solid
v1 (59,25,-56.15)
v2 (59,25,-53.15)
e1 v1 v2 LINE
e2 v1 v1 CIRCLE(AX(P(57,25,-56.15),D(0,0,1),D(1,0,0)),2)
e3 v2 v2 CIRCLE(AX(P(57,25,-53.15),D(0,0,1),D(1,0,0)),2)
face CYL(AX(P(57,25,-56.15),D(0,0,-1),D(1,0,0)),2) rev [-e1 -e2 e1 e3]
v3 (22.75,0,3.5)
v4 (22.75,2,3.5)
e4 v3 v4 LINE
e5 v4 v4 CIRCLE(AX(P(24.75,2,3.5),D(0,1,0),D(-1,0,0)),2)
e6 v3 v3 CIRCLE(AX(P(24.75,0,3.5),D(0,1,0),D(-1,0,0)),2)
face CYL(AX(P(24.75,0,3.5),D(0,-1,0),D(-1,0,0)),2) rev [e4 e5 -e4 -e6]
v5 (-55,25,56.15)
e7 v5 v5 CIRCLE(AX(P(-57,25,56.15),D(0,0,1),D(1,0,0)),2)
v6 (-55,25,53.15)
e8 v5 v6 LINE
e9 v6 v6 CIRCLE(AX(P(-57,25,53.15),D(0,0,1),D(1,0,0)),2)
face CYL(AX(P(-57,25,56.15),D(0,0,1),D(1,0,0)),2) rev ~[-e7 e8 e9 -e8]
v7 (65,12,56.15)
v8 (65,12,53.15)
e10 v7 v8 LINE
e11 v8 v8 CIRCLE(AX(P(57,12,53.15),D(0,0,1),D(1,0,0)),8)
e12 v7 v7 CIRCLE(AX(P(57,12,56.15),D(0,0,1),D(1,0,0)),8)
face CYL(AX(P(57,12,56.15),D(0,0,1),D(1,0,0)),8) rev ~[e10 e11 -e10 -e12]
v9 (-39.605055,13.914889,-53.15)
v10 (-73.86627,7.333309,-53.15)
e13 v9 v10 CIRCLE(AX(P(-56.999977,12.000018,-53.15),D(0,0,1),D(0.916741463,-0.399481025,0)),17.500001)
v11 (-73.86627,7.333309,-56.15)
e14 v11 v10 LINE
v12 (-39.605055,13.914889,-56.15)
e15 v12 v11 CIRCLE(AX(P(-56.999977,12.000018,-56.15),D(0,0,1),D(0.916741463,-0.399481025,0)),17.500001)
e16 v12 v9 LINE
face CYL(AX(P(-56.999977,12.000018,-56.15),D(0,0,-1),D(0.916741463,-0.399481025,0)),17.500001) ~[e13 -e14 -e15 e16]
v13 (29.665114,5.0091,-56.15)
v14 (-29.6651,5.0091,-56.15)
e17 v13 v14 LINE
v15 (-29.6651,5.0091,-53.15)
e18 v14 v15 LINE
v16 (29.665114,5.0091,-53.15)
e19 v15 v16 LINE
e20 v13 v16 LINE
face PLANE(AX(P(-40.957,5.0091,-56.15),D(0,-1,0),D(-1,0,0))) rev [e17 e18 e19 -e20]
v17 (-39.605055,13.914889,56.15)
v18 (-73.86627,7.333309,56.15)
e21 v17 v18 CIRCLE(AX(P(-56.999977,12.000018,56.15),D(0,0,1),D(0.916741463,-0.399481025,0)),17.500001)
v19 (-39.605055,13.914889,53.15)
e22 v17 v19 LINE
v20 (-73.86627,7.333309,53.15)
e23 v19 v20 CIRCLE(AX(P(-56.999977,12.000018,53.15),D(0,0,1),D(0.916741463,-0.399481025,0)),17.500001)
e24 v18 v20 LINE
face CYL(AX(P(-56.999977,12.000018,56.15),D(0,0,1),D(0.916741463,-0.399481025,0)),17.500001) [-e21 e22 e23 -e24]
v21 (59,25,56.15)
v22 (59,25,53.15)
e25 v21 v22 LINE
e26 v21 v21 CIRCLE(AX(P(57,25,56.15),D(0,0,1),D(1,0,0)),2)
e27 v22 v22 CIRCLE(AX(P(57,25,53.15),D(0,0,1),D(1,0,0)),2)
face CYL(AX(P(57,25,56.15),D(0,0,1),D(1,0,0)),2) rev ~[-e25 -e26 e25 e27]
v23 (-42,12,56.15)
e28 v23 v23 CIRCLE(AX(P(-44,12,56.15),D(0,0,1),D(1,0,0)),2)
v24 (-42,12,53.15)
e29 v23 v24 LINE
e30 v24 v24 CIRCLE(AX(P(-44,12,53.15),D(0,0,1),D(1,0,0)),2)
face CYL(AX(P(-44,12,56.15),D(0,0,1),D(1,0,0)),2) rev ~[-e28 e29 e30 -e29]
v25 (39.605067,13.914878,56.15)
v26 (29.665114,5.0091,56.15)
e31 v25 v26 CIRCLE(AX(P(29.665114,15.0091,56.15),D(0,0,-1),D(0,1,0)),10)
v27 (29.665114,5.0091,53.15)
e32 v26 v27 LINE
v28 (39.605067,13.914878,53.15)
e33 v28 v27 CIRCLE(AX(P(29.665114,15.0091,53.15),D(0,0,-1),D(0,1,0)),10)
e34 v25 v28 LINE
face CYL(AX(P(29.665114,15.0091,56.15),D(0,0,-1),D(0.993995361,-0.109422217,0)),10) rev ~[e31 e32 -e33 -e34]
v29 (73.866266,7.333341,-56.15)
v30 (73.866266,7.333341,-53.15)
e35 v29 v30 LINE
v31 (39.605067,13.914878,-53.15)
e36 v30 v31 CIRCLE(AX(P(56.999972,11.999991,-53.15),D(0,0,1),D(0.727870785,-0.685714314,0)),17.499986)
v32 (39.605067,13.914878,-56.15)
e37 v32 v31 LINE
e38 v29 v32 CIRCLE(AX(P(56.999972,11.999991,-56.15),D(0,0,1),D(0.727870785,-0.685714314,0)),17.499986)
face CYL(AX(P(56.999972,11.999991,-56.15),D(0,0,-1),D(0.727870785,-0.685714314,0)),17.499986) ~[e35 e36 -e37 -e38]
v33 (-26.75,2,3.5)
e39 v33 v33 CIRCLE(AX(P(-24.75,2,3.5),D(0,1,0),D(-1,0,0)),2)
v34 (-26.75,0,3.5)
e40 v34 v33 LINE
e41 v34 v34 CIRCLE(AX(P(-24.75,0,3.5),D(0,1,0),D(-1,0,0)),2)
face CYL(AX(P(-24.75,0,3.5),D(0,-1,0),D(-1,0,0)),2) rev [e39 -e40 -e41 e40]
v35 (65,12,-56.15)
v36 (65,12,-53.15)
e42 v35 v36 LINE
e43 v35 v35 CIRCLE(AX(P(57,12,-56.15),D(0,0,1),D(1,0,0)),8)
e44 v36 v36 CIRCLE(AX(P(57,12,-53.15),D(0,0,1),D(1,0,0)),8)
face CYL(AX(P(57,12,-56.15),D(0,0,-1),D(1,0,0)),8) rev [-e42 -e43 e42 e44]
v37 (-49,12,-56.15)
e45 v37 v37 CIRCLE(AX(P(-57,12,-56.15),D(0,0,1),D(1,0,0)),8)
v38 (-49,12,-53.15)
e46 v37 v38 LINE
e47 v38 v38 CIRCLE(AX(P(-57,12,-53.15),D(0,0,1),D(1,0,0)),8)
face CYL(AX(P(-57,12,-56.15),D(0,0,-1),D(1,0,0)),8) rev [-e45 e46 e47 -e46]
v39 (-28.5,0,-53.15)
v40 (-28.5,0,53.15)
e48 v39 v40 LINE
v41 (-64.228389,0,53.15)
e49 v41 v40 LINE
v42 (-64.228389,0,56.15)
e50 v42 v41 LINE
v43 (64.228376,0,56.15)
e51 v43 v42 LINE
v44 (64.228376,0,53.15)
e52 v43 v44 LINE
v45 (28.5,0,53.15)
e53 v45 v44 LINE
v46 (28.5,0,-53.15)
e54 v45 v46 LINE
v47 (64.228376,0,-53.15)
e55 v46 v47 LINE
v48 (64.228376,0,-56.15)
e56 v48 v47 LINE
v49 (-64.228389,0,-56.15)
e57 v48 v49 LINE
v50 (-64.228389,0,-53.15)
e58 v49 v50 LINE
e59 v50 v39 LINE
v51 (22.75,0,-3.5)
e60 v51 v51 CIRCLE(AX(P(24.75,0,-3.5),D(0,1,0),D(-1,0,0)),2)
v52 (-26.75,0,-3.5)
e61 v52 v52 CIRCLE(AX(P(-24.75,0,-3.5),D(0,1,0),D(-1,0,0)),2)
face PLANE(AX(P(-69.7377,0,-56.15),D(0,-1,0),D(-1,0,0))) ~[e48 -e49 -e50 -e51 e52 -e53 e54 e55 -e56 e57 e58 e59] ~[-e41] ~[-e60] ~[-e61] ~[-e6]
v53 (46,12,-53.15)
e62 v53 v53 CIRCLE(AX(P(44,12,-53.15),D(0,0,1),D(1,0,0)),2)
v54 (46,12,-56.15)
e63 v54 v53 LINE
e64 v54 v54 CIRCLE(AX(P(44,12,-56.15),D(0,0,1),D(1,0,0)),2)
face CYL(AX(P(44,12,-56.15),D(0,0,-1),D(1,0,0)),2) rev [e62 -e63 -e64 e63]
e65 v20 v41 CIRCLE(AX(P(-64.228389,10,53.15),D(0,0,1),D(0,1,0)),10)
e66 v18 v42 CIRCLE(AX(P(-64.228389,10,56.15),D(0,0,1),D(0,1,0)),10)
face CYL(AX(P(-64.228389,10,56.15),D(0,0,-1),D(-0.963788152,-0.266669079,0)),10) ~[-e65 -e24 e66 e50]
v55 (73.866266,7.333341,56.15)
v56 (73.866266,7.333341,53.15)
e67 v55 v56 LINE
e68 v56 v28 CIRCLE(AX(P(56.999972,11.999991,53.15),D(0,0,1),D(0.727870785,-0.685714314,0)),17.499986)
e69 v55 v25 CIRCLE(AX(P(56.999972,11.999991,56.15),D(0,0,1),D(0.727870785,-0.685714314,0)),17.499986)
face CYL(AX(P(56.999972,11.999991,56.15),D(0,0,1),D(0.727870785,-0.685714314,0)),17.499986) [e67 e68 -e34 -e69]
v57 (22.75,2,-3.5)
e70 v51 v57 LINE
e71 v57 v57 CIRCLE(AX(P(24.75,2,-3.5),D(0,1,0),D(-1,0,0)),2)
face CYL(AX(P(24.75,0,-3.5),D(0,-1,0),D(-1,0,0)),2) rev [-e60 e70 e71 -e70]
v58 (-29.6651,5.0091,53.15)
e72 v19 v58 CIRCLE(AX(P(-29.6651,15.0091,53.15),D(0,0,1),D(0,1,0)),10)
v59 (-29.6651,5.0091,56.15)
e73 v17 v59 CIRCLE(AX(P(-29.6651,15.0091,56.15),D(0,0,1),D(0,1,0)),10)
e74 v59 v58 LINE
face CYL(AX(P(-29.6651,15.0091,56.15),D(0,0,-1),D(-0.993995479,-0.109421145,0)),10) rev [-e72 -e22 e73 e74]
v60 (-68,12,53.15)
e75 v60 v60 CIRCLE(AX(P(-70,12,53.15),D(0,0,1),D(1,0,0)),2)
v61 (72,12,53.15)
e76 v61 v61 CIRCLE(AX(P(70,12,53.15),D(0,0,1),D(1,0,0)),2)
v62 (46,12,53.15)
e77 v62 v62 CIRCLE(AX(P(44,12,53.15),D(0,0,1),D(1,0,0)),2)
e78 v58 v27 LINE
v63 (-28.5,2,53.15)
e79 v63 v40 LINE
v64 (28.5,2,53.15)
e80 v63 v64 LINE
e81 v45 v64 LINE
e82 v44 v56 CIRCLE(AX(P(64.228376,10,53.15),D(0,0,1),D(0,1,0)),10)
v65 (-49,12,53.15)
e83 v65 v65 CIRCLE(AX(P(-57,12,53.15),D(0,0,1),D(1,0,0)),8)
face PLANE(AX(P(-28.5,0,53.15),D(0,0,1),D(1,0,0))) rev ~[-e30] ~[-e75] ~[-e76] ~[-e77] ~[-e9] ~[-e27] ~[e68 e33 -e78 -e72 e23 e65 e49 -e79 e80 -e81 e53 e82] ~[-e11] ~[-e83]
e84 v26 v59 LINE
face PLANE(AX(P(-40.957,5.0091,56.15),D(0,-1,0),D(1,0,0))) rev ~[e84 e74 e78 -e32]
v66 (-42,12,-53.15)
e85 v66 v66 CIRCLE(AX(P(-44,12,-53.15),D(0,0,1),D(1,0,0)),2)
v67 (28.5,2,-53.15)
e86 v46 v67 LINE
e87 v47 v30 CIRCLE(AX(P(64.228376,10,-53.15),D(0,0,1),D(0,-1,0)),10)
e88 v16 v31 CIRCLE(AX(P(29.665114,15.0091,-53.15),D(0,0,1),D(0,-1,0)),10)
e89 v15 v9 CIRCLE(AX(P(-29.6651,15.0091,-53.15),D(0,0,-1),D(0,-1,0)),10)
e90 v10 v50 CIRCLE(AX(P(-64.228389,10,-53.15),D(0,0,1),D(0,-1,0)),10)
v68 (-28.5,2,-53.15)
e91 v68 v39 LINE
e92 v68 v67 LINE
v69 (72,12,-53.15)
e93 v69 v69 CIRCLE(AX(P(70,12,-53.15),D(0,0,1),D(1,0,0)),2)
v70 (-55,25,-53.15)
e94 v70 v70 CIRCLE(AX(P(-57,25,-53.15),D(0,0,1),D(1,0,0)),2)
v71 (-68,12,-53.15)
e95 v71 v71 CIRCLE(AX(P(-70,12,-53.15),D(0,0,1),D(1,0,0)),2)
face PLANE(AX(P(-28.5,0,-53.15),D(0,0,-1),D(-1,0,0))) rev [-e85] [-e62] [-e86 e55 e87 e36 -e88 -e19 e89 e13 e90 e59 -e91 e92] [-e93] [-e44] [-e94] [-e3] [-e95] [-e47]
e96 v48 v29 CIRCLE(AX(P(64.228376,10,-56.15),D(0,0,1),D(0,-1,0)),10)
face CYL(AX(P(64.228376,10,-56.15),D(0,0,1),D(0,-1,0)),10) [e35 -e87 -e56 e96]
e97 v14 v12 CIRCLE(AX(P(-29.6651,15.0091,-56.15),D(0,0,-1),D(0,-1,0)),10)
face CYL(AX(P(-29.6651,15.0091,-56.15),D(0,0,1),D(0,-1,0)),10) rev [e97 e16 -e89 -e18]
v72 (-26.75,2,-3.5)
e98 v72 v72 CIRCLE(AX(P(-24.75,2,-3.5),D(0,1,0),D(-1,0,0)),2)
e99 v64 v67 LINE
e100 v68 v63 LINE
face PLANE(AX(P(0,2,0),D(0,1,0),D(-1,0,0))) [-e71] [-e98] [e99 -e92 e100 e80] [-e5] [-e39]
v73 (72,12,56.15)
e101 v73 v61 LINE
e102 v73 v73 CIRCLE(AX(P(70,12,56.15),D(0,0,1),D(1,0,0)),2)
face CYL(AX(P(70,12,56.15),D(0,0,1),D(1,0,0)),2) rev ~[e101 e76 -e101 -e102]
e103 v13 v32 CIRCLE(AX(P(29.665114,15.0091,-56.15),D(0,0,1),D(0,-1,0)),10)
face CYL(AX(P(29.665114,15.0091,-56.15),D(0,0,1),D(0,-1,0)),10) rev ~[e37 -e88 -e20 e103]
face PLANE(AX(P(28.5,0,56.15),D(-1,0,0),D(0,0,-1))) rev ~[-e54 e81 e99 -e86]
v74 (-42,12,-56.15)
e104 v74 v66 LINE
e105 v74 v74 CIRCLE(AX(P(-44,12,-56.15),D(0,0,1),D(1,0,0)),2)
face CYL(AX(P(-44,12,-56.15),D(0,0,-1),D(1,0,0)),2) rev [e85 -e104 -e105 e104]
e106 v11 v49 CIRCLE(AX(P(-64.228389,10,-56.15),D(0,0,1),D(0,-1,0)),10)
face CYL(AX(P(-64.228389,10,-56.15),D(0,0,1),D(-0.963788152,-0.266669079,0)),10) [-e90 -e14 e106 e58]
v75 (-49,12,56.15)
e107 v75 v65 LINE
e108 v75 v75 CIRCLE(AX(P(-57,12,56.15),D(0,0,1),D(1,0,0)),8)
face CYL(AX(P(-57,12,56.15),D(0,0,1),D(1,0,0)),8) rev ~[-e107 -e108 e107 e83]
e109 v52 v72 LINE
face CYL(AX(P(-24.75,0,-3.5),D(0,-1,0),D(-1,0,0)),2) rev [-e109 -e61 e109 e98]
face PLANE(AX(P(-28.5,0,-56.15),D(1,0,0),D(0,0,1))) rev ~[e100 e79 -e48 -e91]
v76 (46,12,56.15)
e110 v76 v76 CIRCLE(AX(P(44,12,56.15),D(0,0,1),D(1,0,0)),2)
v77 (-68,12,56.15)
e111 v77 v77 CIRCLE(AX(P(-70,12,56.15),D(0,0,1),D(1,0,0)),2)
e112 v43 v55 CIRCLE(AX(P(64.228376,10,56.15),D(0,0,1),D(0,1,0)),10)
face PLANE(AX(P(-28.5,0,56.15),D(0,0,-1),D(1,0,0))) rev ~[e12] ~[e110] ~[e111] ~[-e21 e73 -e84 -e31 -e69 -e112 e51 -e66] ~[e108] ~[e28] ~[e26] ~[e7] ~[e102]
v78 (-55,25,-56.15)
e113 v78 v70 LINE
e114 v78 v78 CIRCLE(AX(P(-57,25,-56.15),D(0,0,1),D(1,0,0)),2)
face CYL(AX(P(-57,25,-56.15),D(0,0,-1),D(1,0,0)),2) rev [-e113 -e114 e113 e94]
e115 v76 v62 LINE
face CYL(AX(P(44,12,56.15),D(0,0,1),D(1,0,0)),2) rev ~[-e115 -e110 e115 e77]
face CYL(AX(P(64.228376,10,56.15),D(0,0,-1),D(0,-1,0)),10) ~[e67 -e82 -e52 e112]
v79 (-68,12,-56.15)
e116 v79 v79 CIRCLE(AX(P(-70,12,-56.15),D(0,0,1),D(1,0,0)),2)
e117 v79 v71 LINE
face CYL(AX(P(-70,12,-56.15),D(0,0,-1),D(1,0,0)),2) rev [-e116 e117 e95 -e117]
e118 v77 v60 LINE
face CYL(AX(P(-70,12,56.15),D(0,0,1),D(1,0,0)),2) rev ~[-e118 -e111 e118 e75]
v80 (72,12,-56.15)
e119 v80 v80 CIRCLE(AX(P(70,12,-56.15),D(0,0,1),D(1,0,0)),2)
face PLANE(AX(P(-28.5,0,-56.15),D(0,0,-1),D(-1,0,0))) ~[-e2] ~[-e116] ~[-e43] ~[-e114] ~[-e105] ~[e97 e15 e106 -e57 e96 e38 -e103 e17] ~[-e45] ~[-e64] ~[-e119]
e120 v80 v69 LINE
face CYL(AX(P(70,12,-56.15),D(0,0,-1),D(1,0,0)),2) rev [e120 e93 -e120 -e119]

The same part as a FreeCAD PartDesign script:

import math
import FreeCAD as App
import Part
import Sketcher


def edges_at(feature, points):
    """Names of the edges that pass closest to the given points."""
    edges = feature.Shape.Edges
    near = lambda p: min(range(len(edges)), key=lambda i: edges[i].distToShape(Part.Vertex(*p))[0])
    return sorted({f"Edge{near(p) + 1}" for p in points})

doc = App.newDocument("Part")
body = doc.addObject("PartDesign::Body", "Body")

sketch1 = doc.addObject("Sketcher::SketchObject", "Sketch")
body.addObject(sketch1)
sketch1.AttachmentSupport = (doc.XZ_Plane, [""])
sketch1.MapMode = "FlatFace"
sketch1.addGeometry([
    Part.LineSegment(App.Vector(28.5, 56.1, 0), App.Vector(28.5, -56.1, 0)),
    Part.LineSegment(App.Vector(28.5, -56.1, 0), App.Vector(-28.5, -56.1, 0)),
    Part.LineSegment(App.Vector(-28.5, -56.1, 0), App.Vector(-28.5, 56.1, 0)),
    Part.LineSegment(App.Vector(-28.5, 56.1, 0), App.Vector(28.5, 56.1, 0)),
    Part.Circle(App.Vector(24.8, -3.5, 0), App.Vector(0, 0, 1), 2),
    Part.Circle(App.Vector(-24.8, -3.5, 0), App.Vector(0, 0, 1), 2),
    Part.Circle(App.Vector(24.8, 3.5, 0), App.Vector(0, 0, 1), 2),
    Part.Circle(App.Vector(-24.8, 3.5, 0), App.Vector(0, 0, 1), 2),
], False)
sketch1.addConstraint([
    Sketcher.Constraint("Coincident", 0, 2, 1, 1),
    Sketcher.Constraint("Coincident", 1, 2, 2, 1),
    Sketcher.Constraint("Coincident", 2, 2, 3, 1),
    Sketcher.Constraint("Coincident", 3, 2, 0, 1),
    Sketcher.Constraint("Vertical", 0),
    Sketcher.Constraint("Horizontal", 1),
    Sketcher.Constraint("Vertical", 2),
    Sketcher.Constraint("Horizontal", 3),
    Sketcher.Constraint("Equal", 4, 5),
    Sketcher.Constraint("Equal", 5, 6),
    Sketcher.Constraint("Equal", 6, 7),
    Sketcher.Constraint("Symmetric", 5, 3, 6, 3, -1, 1),
    Sketcher.Constraint("Symmetric", 4, 3, 7, 3, -1, 1),
    Sketcher.Constraint("Symmetric", 0, 2, 2, 2, -1, 1),
    Sketcher.Constraint("Symmetric", 4, 3, 5, 3, -2),
    Sketcher.Constraint("Diameter", 4, 4.0),
    Sketcher.Constraint("DistanceX", 1, 2, 1, 1, 57.0),
    Sketcher.Constraint("DistanceY", 0, 2, 0, 1, 112.3),
    Sketcher.Constraint("DistanceY", 4, 3, 6, 3, 7.0),
    Sketcher.Constraint("DistanceX", -1, 1, 4, 3, 24.75),
])
pad1 = doc.addObject("PartDesign::Pad", "Pad")
body.addObject(pad1)
pad1.Profile = sketch1
pad1.Length = 2
pad1.Reversed = True

sketch2 = doc.addObject("Sketcher::SketchObject", "Sketch001")
body.addObject(sketch2)
sketch2.AttachmentSupport = (doc.XY_Plane, [""])
sketch2.MapMode = "FlatFace"
sketch2.AttachmentOffset = App.Placement(App.Vector(0, 0, 56.15), App.Rotation())
sketch2.addGeometry([
    Part.LineSegment(App.Vector(41, 5, 0), App.Vector(-41, 5, 0)),
    Part.ArcOfCircle(Part.Circle(App.Vector(-57, 12, 0), App.Vector(0, 0, 1), 17.5), math.radians(-24), math.radians(223)),
    Part.LineSegment(App.Vector(-69.7, 0, 0), App.Vector(69.7, 0, 0)),
    Part.ArcOfCircle(Part.Circle(App.Vector(57, 12, 0), App.Vector(0, 0, 1), 17.5), math.radians(-43), math.radians(204)),
    Part.Circle(App.Vector(-70, 12, 0), App.Vector(0, 0, 1), 2),
    Part.Circle(App.Vector(-57, 12, 0), App.Vector(0, 0, 1), 8),
    Part.Circle(App.Vector(-44, 12, 0), App.Vector(0, 0, 1), 2),
    Part.Circle(App.Vector(44, 12, 0), App.Vector(0, 0, 1), 2),
    Part.Circle(App.Vector(57, 12, 0), App.Vector(0, 0, 1), 8),
    Part.Circle(App.Vector(70, 12, 0), App.Vector(0, 0, 1), 2),
    Part.Circle(App.Vector(-57, 25, 0), App.Vector(0, 0, 1), 2),
    Part.Circle(App.Vector(57, 25, 0), App.Vector(0, 0, 1), 2),
], False)
sketch2.addConstraint([
    Sketcher.Constraint("Coincident", 0, 2, 1, 1),
    Sketcher.Constraint("Coincident", 1, 2, 2, 1),
    Sketcher.Constraint("Coincident", 2, 2, 3, 1),
    Sketcher.Constraint("Coincident", 3, 2, 0, 1),
    Sketcher.Constraint("Horizontal", 0),
    Sketcher.Constraint("Horizontal", 2),
    Sketcher.Constraint("Coincident", 5, 3, 1, 3),
    Sketcher.Constraint("Coincident", 8, 3, 3, 3),
    Sketcher.Constraint("Equal", 1, 3),
    Sketcher.Constraint("Equal", 4, 6),
    Sketcher.Constraint("Equal", 6, 7),
    Sketcher.Constraint("Equal", 5, 8),
    Sketcher.Constraint("Equal", 7, 9),
    Sketcher.Constraint("Equal", 9, 10),
    Sketcher.Constraint("Equal", 10, 11),
    Sketcher.Constraint("Symmetric", 1, 2, 2, 2, -1, 1),
    Sketcher.Constraint("Symmetric", 6, 3, 7, 3, -2),
    Sketcher.Constraint("Symmetric", 4, 3, 9, 3, -2),
    Sketcher.Constraint("Symmetric", 10, 3, 11, 3, -2),
    Sketcher.Constraint("Horizontal", 1, 3, 3, 3),
    Sketcher.Constraint("Horizontal", 3, 3, 4, 3),
    Sketcher.Constraint("Horizontal", 5, 3, 6, 3),
    Sketcher.Constraint("Vertical", 5, 3, 10, 3),
    Sketcher.Constraint("Diameter", 4, 4.0),
    Sketcher.Constraint("Diameter", 5, 16.0),
    Sketcher.Constraint("Radius", 1, 17.5),
    Sketcher.Constraint("DistanceX", 1, 3, -1, 1, 57.0),
    Sketcher.Constraint("DistanceX", 4, 3, 1, 3, 13.0),
    Sketcher.Constraint("DistanceX", 1, 3, 6, 3, 13.0),
    Sketcher.Constraint("DistanceY", 1, 3, 10, 3, 13.0),
    Sketcher.Constraint("DistanceY", -1, 1, 1, 3, 12.0),
    Sketcher.Constraint("DistanceX", 0, 2, 0, 1, 81.914),
])
pad2 = doc.addObject("PartDesign::Pad", "Pad001")
body.addObject(pad2)
pad2.Profile = sketch2
pad2.Length = 3
pad2.Reversed = True
doc.recompute()

fillet = doc.addObject("PartDesign::Fillet", "Fillet")
body.addObject(fillet)
fillet.Base = (pad2, edges_at(pad2, [(-40.957, 5.009, 54.65), (40.957, 5.009, 54.65)]))
fillet.Radius = 10
doc.recompute()

fillet2 = doc.addObject("PartDesign::Fillet", "Fillet001")
body.addObject(fillet2)
fillet2.Base = (fillet, edges_at(fillet, [(-69.738, 0, 54.65), (69.738, 0, 54.65)]))
fillet2.Radius = 10
doc.recompute()

mirrored = doc.addObject("PartDesign::Mirrored", "Mirrored")
body.addObject(mirrored)
mirrored.Originals = [pad2]
mirrored.MirrorPlane = (doc.XY_Plane, [""])
body.Tip = mirrored
doc.recompute()

fillet3 = doc.addObject("PartDesign::Fillet", "Fillet002")
body.addObject(fillet3)
fillet3.Base = (mirrored, edges_at(mirrored, [
    (-40.957, 5.009, -54.65),
    (40.957, 5.009, -54.65),
    (-69.738, 0, -54.65),
    (69.738, 0, -54.65),
]))
fillet3.Radius = 10

doc.recompute()
